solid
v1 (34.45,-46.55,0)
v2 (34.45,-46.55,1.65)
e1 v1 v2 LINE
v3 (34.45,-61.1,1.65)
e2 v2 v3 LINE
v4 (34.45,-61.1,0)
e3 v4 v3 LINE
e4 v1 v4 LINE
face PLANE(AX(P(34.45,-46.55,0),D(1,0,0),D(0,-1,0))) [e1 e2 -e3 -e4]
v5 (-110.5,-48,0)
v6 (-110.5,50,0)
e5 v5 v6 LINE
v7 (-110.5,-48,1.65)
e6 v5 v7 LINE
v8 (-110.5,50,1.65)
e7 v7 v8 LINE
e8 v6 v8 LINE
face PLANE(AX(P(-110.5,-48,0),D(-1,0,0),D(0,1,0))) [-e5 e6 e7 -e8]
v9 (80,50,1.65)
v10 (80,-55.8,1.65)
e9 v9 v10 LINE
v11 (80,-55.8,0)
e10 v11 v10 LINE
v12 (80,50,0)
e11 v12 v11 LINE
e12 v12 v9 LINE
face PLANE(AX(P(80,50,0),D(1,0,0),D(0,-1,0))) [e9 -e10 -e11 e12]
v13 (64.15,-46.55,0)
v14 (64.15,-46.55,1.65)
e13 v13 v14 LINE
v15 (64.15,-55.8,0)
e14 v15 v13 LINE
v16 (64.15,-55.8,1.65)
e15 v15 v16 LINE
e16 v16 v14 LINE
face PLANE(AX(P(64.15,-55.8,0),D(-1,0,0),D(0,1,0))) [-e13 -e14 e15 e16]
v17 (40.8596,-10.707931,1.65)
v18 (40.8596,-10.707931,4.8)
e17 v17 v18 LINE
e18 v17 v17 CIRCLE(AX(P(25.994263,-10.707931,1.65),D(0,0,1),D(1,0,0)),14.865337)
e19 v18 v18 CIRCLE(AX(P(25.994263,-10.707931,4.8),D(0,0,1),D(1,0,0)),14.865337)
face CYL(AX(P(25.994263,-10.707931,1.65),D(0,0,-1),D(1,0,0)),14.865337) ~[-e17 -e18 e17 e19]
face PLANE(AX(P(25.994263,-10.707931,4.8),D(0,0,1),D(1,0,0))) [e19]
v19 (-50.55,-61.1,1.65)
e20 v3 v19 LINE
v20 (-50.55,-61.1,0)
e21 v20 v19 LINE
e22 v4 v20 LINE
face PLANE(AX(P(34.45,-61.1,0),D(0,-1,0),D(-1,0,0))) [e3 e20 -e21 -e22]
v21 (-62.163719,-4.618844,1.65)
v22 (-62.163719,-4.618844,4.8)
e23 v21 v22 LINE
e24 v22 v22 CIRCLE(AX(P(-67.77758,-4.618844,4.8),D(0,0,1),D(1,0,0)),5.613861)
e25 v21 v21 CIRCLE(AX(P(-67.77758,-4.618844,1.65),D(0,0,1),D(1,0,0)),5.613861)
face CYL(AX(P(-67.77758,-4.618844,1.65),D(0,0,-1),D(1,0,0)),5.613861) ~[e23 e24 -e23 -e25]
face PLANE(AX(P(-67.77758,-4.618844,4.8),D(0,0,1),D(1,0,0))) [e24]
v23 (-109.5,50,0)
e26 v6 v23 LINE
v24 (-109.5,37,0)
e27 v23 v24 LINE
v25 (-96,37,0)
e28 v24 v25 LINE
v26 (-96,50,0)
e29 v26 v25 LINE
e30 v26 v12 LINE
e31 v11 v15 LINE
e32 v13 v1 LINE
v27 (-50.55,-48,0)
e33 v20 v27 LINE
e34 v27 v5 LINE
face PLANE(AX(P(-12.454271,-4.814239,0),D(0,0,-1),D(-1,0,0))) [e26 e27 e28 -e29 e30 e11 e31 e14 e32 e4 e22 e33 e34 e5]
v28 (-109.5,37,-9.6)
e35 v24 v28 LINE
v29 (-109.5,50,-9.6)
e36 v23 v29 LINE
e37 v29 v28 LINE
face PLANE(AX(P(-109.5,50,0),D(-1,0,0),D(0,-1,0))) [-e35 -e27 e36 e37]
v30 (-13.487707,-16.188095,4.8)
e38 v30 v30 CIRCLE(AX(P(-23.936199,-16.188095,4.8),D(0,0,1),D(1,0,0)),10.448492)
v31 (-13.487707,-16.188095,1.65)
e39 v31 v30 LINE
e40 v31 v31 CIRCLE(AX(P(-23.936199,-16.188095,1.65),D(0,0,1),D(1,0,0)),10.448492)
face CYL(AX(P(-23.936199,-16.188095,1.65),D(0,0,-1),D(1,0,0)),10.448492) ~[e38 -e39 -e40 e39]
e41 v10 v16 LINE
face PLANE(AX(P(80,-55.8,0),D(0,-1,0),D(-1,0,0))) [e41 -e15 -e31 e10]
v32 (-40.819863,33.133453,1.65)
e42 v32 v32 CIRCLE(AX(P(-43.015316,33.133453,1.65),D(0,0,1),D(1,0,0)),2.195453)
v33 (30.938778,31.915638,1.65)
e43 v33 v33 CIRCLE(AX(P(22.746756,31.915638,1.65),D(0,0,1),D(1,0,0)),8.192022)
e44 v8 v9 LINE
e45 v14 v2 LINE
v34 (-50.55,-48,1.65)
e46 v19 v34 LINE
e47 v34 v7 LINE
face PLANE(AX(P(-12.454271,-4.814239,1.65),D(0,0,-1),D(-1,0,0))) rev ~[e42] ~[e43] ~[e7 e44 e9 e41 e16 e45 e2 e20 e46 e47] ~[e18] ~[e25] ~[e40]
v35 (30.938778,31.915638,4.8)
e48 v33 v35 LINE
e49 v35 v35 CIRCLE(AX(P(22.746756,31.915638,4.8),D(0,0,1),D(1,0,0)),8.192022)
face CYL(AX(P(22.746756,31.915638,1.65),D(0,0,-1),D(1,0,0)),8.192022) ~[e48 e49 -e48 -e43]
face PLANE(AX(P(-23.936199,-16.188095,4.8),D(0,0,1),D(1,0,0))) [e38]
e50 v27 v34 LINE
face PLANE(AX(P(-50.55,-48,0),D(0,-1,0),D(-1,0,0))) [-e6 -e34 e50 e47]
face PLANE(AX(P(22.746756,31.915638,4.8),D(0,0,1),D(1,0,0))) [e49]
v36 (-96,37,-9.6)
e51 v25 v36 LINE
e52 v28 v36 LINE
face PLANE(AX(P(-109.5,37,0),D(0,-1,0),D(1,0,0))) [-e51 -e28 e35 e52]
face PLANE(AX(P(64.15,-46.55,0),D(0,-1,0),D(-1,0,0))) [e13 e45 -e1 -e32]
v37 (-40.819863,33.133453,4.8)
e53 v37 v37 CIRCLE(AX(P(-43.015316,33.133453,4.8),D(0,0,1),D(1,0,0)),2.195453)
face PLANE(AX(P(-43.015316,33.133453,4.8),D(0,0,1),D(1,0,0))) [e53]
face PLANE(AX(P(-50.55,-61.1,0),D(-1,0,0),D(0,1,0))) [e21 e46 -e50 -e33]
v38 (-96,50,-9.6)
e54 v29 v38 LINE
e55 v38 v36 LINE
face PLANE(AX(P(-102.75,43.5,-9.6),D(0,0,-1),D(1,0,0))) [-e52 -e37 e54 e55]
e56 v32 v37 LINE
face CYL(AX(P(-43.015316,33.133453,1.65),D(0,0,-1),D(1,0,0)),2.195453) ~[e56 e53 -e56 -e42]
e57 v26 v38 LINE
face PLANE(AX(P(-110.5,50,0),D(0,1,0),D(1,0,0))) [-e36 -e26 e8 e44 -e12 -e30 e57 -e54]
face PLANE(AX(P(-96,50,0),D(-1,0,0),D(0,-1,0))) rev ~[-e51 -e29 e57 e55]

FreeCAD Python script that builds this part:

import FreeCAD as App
import Part
import Sketcher


def add_polygon(sketch, points):
    """Adds a closed chain of lines whose ends are joined by coincident constraints."""
    first, n = sketch.GeometryCount, len(points)
    for a, b in zip(points, points[1:] + points[:1]):
        sketch.addGeometry(Part.LineSegment(App.Vector(*a, 0), App.Vector(*b, 0)), False)
    for i in range(n):
        sketch.addConstraint(Sketcher.Constraint("Coincident", first + i, 2, first + (i + 1) % n, 1))

doc = App.newDocument("Part")
body = doc.addObject("PartDesign::Body", "Body")

sketch1 = body.newObject("Sketcher::SketchObject", "Sketch")
sketch1.AttachmentSupport = (doc.getObject("XY_Plane"), [""])
sketch1.MapMode = "FlatFace"
add_polygon(sketch1, [(80, 50), (-110, 50), (-110, -48), (-51, -48), (-51, -61), (34, -61), (34, -47), (64, -47), (64, -56), (80, -56)])
sketch1.addConstraint([
    Sketcher.Constraint("Horizontal", 0),
    Sketcher.Constraint("Vertical", 1),
    Sketcher.Constraint("Horizontal", 2),
    Sketcher.Constraint("Vertical", 3),
    Sketcher.Constraint("Horizontal", 4),
    Sketcher.Constraint("Vertical", 5),
    Sketcher.Constraint("Horizontal", 6),
    Sketcher.Constraint("Vertical", 7),
    Sketcher.Constraint("Horizontal", 8),
    Sketcher.Constraint("Vertical", 9),
    Sketcher.Constraint("DistanceX", 4, 1, 4, 2, 85.0),
    Sketcher.Constraint("DistanceY", 1, 2, 1, 1, 98.0),
    Sketcher.Constraint("DistanceX", 0, 2, 0, 1, 190.5),
    Sketcher.Constraint("DistanceX", 6, 1, 6, 2, 29.7),
    Sketcher.Constraint("DistanceY", 3, 2, 3, 1, 13.1),
    Sketcher.Constraint("DistanceY", 9, 1, 9, 2, 105.8),
    Sketcher.Constraint("DistanceY", -1, 1, 0, 2, 50.0),
    Sketcher.Constraint("DistanceX", -1, 1, 8, 2, 80.0),
    Sketcher.Constraint("DistanceX", 2, 1, 2, 2, 59.95),
    Sketcher.Constraint("DistanceY", 5, 1, 5, 2, 14.55),
])
pad1 = body.newObject("PartDesign::Pad", "Pad")
pad1.Profile = sketch1
pad1.Length = 1.65

sketch2 = body.newObject("Sketcher::SketchObject", "Sketch001")
sketch2.AttachmentSupport = (doc.getObject("XY_Plane"), [""])
sketch2.MapMode = "FlatFace"
sketch2.AttachmentOffset = App.Placement(App.Vector(0, 0, 1.65), App.Rotation())
sketch2.addGeometry([
    Part.Circle(App.Vector(-43, 33.1, 0), App.Vector(0, 0, 1), 2.2),
    Part.Circle(App.Vector(22.7, 31.9, 0), App.Vector(0, 0, 1), 8.2),
    Part.Circle(App.Vector(-67.8, -4.6, 0), App.Vector(0, 0, 1), 5.6),
    Part.Circle(App.Vector(26, -10.7, 0), App.Vector(0, 0, 1), 14.9),
    Part.Circle(App.Vector(-23.9, -16.2, 0), App.Vector(0, 0, 1), 10.4),
], False)
sketch2.addConstraint([
    Sketcher.Constraint("Diameter", 0, 4.390906),
    Sketcher.Constraint("Diameter", 1, 16.384044),
    Sketcher.Constraint("Diameter", 2, 11.227722),
    Sketcher.Constraint("Diameter", 3, 29.730674),
    Sketcher.Constraint("Diameter", 4, 20.896984),
    Sketcher.Constraint("DistanceX", 4, 3, -1, 1, 23.936199),
    Sketcher.Constraint("DistanceY", -1, 1, 1, 3, 31.915638),
    Sketcher.Constraint("DistanceX", 2, 3, -1, 1, 67.77758),
    Sketcher.Constraint("DistanceY", 3, 3, -1, 1, 10.707931),
    Sketcher.Constraint("DistanceX", 0, 3, 3, 3, 69.009579),
    Sketcher.Constraint("DistanceY", 4, 3, 2, 3, 11.569251),
    Sketcher.Constraint("DistanceY", 4, 3, 0, 3, 49.321548),
    Sketcher.Constraint("DistanceX", 0, 3, -1, 1, 43.015316),
    Sketcher.Constraint("DistanceY", -1, 1, 0, 3, 33.133453),
    Sketcher.Constraint("DistanceX", -1, 1, 1, 3, 22.746756),
])
pad2 = body.newObject("PartDesign::Pad", "Pad001")
pad2.Profile = sketch2
pad2.Length = 3.15

sketch3 = body.newObject("Sketcher::SketchObject", "Sketch002")
sketch3.AttachmentSupport = (doc.getObject("XY_Plane"), [""])
sketch3.MapMode = "FlatFace"
add_polygon(sketch3, [(-110, 37), (-110, 50), (-96, 50), (-96, 37)])
sketch3.addConstraint([
    Sketcher.Constraint("Vertical", 0),
    Sketcher.Constraint("Horizontal", 1),
    Sketcher.Constraint("Vertical", 2),
    Sketcher.Constraint("Horizontal", 3),
    Sketcher.Constraint("DistanceY", 0, 1, 0, 2, 13.0),
    Sketcher.Constraint("DistanceX", 1, 1, 1, 2, 13.5),
    Sketcher.Constraint("DistanceY", -1, 1, 0, 2, 50.0),
    Sketcher.Constraint("DistanceX", 1, 2, -1, 1, 96.0),
])
pad3 = body.newObject("PartDesign::Pad", "Pad002")
pad3.Profile = sketch3
pad3.Length = 9.6
pad3.Reversed = True

doc.recompute()
